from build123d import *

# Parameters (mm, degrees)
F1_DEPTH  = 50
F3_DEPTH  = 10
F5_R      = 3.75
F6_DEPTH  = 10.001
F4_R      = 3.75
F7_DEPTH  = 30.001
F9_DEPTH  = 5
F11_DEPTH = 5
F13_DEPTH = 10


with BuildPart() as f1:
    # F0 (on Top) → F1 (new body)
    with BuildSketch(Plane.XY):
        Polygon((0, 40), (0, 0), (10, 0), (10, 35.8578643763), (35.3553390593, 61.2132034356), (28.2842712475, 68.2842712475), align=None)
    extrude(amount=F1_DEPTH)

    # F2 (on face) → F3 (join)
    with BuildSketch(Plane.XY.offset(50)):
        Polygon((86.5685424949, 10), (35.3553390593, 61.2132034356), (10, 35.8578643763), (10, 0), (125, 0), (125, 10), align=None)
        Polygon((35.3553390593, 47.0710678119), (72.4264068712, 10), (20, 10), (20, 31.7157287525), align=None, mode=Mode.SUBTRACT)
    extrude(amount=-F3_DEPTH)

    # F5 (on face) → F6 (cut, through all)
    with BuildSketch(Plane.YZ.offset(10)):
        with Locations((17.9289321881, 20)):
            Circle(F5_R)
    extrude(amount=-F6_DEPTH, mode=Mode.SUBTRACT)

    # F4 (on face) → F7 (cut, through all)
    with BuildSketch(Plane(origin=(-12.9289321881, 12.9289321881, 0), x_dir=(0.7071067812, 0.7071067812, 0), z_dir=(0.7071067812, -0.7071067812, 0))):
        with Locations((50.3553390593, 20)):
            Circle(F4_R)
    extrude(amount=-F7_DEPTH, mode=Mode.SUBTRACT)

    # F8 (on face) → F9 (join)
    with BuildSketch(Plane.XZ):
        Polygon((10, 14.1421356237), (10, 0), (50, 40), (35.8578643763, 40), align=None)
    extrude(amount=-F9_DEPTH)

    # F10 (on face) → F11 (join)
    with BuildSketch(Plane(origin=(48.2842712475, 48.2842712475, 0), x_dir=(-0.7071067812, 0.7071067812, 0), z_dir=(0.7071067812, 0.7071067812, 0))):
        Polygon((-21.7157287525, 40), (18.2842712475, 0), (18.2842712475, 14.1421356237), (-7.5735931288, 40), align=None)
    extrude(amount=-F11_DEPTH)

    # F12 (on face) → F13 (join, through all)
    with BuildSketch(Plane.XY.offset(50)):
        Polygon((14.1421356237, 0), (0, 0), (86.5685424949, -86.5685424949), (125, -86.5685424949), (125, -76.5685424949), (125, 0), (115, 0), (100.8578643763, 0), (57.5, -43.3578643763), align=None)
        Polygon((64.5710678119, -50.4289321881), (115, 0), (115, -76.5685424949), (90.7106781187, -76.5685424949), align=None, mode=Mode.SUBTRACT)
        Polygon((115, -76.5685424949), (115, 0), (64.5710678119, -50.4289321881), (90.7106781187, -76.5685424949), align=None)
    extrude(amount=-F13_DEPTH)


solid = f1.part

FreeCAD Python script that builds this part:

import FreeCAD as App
import Part
import Sketcher
from FreeCAD import Vector
Q = App.Units.Quantity

doc = App.newDocument("Part")
body = doc.addObject("PartDesign::Body", "Body")

# Sketch on XY plane
sketch1 = doc.addObject("Sketcher::SketchObject", "Sketch")
body.addObject(sketch1)
sketch1.AttachmentSupport = (doc.XY_Plane, [""])
sketch1.MapMode = "FlatFace"
sketch1.addGeometry([
    Part.LineSegment(Vector(0, 40, 0), Vector(0, 0, 0)),  # 0
    Part.LineSegment(Vector(0, 0, 0), Vector(10, 0, 0)),  # 1
    Part.LineSegment(Vector(10, 0, 0), Vector(10, 36, 0)),  # 2
    Part.LineSegment(Vector(10, 36, 0), Vector(35, 61, 0)),  # 3
    Part.LineSegment(Vector(35, 61, 0), Vector(28, 68, 0)),  # 4
    Part.LineSegment(Vector(28, 68, 0), Vector(0, 40, 0)),  # 5
], False)
sketch1.addConstraint([
    Sketcher.Constraint("Coincident", 0, 2, 1, 1),
    Sketcher.Constraint("Coincident", 1, 2, 2, 1),
    Sketcher.Constraint("Coincident", 2, 2, 3, 1),
    Sketcher.Constraint("Coincident", 3, 2, 4, 1),
    Sketcher.Constraint("Coincident", 4, 2, 5, 1),
    Sketcher.Constraint("Coincident", 5, 2, 0, 1),
    Sketcher.Constraint("Vertical", 0),
    Sketcher.Constraint("Horizontal", 1),
    Sketcher.Constraint("Vertical", 2),
    Sketcher.Constraint("Coincident", 0, 2, -1, 1),
    Sketcher.Constraint("Perpendicular", 3, 4),
    Sketcher.Constraint("Perpendicular", 4, 5),
    Sketcher.Constraint("DistanceX", 1, 1, 1, 2, Q("10 mm")),
    Sketcher.Constraint("DistanceY", 0, 2, 0, 1, Q("40 mm")),
    Sketcher.Constraint("Angle", 3, Q("45 deg")),
    Sketcher.Constraint("Distance", 4, Q("10 mm")),
    Sketcher.Constraint("Distance", 5, Q("40 mm")),
])
pad1 = doc.addObject("PartDesign::Pad", "Pad")
body.addObject(pad1)
pad1.Profile = sketch1
pad1.Length = 50

# Sketch on XY plane
sketch2 = doc.addObject("Sketcher::SketchObject", "Sketch001")
body.addObject(sketch2)
sketch2.AttachmentSupport = (doc.XY_Plane, [""])
sketch2.MapMode = "FlatFace"
sketch2.AttachmentOffset = App.Placement(Vector(0, 0, 50), App.Rotation())
sketch2.addGeometry([
    Part.LineSegment(Vector(87, 10, 0), Vector(35, 61, 0)),  # 0
    Part.LineSegment(Vector(35, 61, 0), Vector(10, 36, 0)),  # 1
    Part.LineSegment(Vector(10, 36, 0), Vector(10, 0, 0)),  # 2
    Part.LineSegment(Vector(10, 0, 0), Vector(125, 0, 0)),  # 3
    Part.LineSegment(Vector(125, 0, 0), Vector(125, 10, 0)),  # 4
    Part.LineSegment(Vector(125, 10, 0), Vector(87, 10, 0)),  # 5
    Part.LineSegment(Vector(20, 32, 0), Vector(35, 47, 0)),  # 6
    Part.LineSegment(Vector(35, 47, 0), Vector(72, 10, 0)),  # 7
    Part.LineSegment(Vector(72, 10, 0), Vector(20, 10, 0)),  # 8
    Part.LineSegment(Vector(20, 10, 0), Vector(20, 32, 0)),  # 9
], False)
sketch2.addConstraint([
    Sketcher.Constraint("Coincident", 0, 2, 1, 1),
    Sketcher.Constraint("Coincident", 1, 2, 2, 1),
    Sketcher.Constraint("Coincident", 2, 2, 3, 1),
    Sketcher.Constraint("Coincident", 3, 2, 4, 1),
    Sketcher.Constraint("Coincident", 4, 2, 5, 1),
    Sketcher.Constraint("Coincident", 5, 2, 0, 1),
    Sketcher.Constraint("Coincident", 6, 2, 7, 1),
    Sketcher.Constraint("Coincident", 7, 2, 8, 1),
    Sketcher.Constraint("Coincident", 8, 2, 9, 1),
    Sketcher.Constraint("Coincident", 9, 2, 6, 1),
    Sketcher.Constraint("Vertical", 2),
    Sketcher.Constraint("Horizontal", 3),
    Sketcher.Constraint("Vertical", 4),
    Sketcher.Constraint("Horizontal", 5),
    Sketcher.Constraint("Horizontal", 8),
    Sketcher.Constraint("Vertical", 9),
    Sketcher.Constraint("PointOnObject", 2, 2, -1),
    Sketcher.Constraint("Perpendicular", 0, 1),
    Sketcher.Constraint("Parallel", 1, 6),
    Sketcher.Constraint("Perpendicular", 6, 7),
    Sketcher.Constraint("Horizontal", 5, 2, 7, 2),
    Sketcher.Constraint("Vertical", 0, 2, 6, 2),
    Sketcher.Constraint("DistanceX", 3, 1, 3, 2, Q("115 mm")),
    Sketcher.Constraint("DistanceY", 4, 1, 4, 2, Q("10 mm")),
    Sketcher.Constraint("Angle", 0, Q("135 deg")),
    Sketcher.Constraint("DistanceX", -1, 1, 1, 2, Q("10 mm")),
    Sketcher.Constraint("DistanceX", -1, 1, 8, 2, Q("20 mm")),
    Sketcher.Constraint("DistanceY", 9, 1, 9, 2, Q("21.715729 mm")),
    Sketcher.Constraint("Distance", 6, Q("21.715729 mm")),
    Sketcher.Constraint("DistanceX", 5, 2, 5, 1, Q("38.431458 mm")),
])
pad2 = doc.addObject("PartDesign::Pad", "Pad001")
body.addObject(pad2)
pad2.Profile = sketch2
pad2.Length = 10
pad2.Reversed = True

# Sketch on YZ plane
sketch3 = doc.addObject("Sketcher::SketchObject", "Sketch002")
body.addObject(sketch3)
sketch3.AttachmentSupport = (doc.YZ_Plane, [""])
sketch3.MapMode = "FlatFace"
sketch3.AttachmentOffset = App.Placement(Vector(0, 0, 10), App.Rotation())
sketch3.addGeometry(Part.Circle(Vector(17.9, 20, 0), Vector(0, 0, 1), 3.8), False)
sketch3.addConstraint([
    Sketcher.Constraint("Diameter", 0, Q("7.5 mm")),
    Sketcher.Constraint("DistanceY", -1, 1, 0, 3, Q("20 mm")),
    Sketcher.Constraint("DistanceX", -1, 1, 0, 3, Q("17.928932 mm")),
])
pocket1 = doc.addObject("PartDesign::Pocket", "Pocket")
body.addObject(pocket1)
pocket1.Profile = sketch3
pocket1.Type = "ThroughAll"

# Sketch on an angled plane
sketch4 = doc.addObject("Sketcher::SketchObject", "Sketch003")
body.addObject(sketch4)
sketch4.Placement = App.Placement(Vector(-12.928932, 12.928932, 0), App.Rotation(Vector(0.707106781, 0.707106781, 0), Vector(0, 0, 0.999999999), Vector(0.707106781, -0.707106781, 0), "ZXY"))
sketch4.addGeometry(Part.Circle(Vector(50.4, 20, 0), Vector(0, 0, 1), 3.8), False)
sketch4.addConstraint([
    Sketcher.Constraint("Diameter", 0, Q("7.5 mm")),
    Sketcher.Constraint("DistanceY", -1, 1, 0, 3, Q("20 mm")),
    Sketcher.Constraint("DistanceX", -1, 1, 0, 3, Q("50.355339 mm")),
])
pocket2 = doc.addObject("PartDesign::Pocket", "Pocket001")
body.addObject(pocket2)
pocket2.Profile = sketch4
pocket2.Type = "ThroughAll"

# Sketch on XZ plane
sketch5 = doc.addObject("Sketcher::SketchObject", "Sketch004")
body.addObject(sketch5)
sketch5.AttachmentSupport = (doc.XZ_Plane, [""])
sketch5.MapMode = "FlatFace"
sketch5.addGeometry([
    Part.LineSegment(Vector(10, 14, 0), Vector(10, 0, 0)),
    Part.LineSegment(Vector(10, 0, 0), Vector(50, 40, 0)),
    Part.LineSegment(Vector(50, 40, 0), Vector(36, 40, 0)),
    Part.LineSegment(Vector(36, 40, 0), Vector(10, 14, 0)),
], False)
sketch5.addConstraint([
    Sketcher.Constraint("Coincident", 0, 2, 1, 1),
    Sketcher.Constraint("Coincident", 1, 2, 2, 1),
    Sketcher.Constraint("Coincident", 2, 2, 3, 1),
    Sketcher.Constraint("Coincident", 3, 2, 0, 1),
    Sketcher.Constraint("Vertical", 0),
    Sketcher.Constraint("Horizontal", 2),
    Sketcher.Constraint("PointOnObject", 0, 2, -1),
    Sketcher.Constraint("Parallel", 1, 3),
    Sketcher.Constraint("Equal", 2, 0),
    Sketcher.Constraint("DistanceX", -1, 1, 0, 2, Q("10 mm")),
    Sketcher.Constraint("DistanceX", -1, 1, 1, 2, Q("50 mm")),
    Sketcher.Constraint("DistanceX", 2, 2, 2, 1, Q("14.142136 mm")),
])
pad3 = doc.addObject("PartDesign::Pad", "Pad002")
body.addObject(pad3)
pad3.Profile = sketch5
pad3.Length = 5
pad3.Reversed = True

# Sketch on an angled plane
sketch6 = doc.addObject("Sketcher::SketchObject", "Sketch005")
body.addObject(sketch6)
sketch6.Placement = App.Placement(Vector(48.284271, 48.284271, 0), App.Rotation(Vector(-0.707106781, 0.707106781, 0), Vector(0, 0, 0.999999999), Vector(0.707106781, 0.707106781, 0), "ZXY"))
sketch6.addGeometry([
    Part.LineSegment(Vector(-22, 40, 0), Vector(18, 0, 0)),
    Part.LineSegment(Vector(18, 0, 0), Vector(18, 14, 0)),
    Part.LineSegment(Vector(18, 14, 0), Vector(-8, 40, 0)),
    Part.LineSegment(Vector(-8, 40, 0), Vector(-22, 40, 0)),
], False)
sketch6.addConstraint([
    Sketcher.Constraint("Coincident", 0, 2, 1, 1),
    Sketcher.Constraint("Coincident", 1, 2, 2, 1),
    Sketcher.Constraint("Coincident", 2, 2, 3, 1),
    Sketcher.Constraint("Coincident", 3, 2, 0, 1),
    Sketcher.Constraint("Vertical", 1),
    Sketcher.Constraint("Horizontal", 3),
    Sketcher.Constraint("PointOnObject", 0, 2, -1),
    Sketcher.Constraint("Parallel", 0, 2),
    Sketcher.Constraint("Equal", 3, 1),
    Sketcher.Constraint("DistanceY", -1, 1, 2, 2, Q("40 mm")),
    Sketcher.Constraint("DistanceX", 3, 2, 3, 1, Q("14.142136 mm")),
    Sketcher.Constraint("DistanceX", -1, 1, 0, 2, Q("18.284271 mm")),
])
pad4 = doc.addObject("PartDesign::Pad", "Pad003")
body.addObject(pad4)
pad4.Profile = sketch6
pad4.Length = 5
pad4.Reversed = True

# Sketch on XY plane
sketch7 = doc.addObject("Sketcher::SketchObject", "Sketch006")
body.addObject(sketch7)
sketch7.AttachmentSupport = (doc.XY_Plane, [""])
sketch7.MapMode = "FlatFace"
sketch7.AttachmentOffset = App.Placement(Vector(0, 0, 50), App.Rotation())
sketch7.addGeometry([
    Part.LineSegment(Vector(101, 0, 0), Vector(58, -43, 0)),  # 0
    Part.LineSegment(Vector(58, -43, 0), Vector(14, 0, 0)),  # 1
    Part.LineSegment(Vector(14, 0, 0), Vector(0, 0, 0)),  # 2
    Part.LineSegment(Vector(0, 0, 0), Vector(87, -87, 0)),  # 3
    Part.LineSegment(Vector(87, -87, 0), Vector(125, -87, 0)),  # 4
    Part.LineSegment(Vector(125, -87, 0), Vector(125, 0, 0)),  # 5
    Part.LineSegment(Vector(125, 0, 0), Vector(101, 0, 0)),  # 6
], False)
sketch7.addConstraint([
    Sketcher.Constraint("Coincident", 0, 2, 1, 1),
    Sketcher.Constraint("Coincident", 1, 2, 2, 1),
    Sketcher.Constraint("Coincident", 2, 2, 3, 1),
    Sketcher.Constraint("Coincident", 3, 2, 4, 1),
    Sketcher.Constraint("Coincident", 4, 2, 5, 1),
    Sketcher.Constraint("Coincident", 5, 2, 6, 1),
    Sketcher.Constraint("Coincident", 6, 2, 0, 1),
    Sketcher.Constraint("Horizontal", 2),
    Sketcher.Constraint("Horizontal", 4),
    Sketcher.Constraint("Vertical", 5),
    Sketcher.Constraint("Horizontal", 6),
    Sketcher.Constraint("Coincident", 2, 2, -1, 1),
    Sketcher.Constraint("PointOnObject", 5, 2, -1),
    Sketcher.Constraint("Perpendicular", 0, 1),
    Sketcher.Constraint("Parallel", 1, 3),
    Sketcher.Constraint("Equal", 0, 1),
    Sketcher.Constraint("DistanceX", -1, 1, 4, 2, Q("125 mm")),
    Sketcher.Constraint("DistanceX", -1, 1, 0, 2, Q("57.5 mm")),
    Sketcher.Constraint("Distance", 0, Q("61.31728 mm")),
    Sketcher.Constraint("DistanceX", 4, 1, 4, 2, Q("38.431458 mm")),
])
pad5 = doc.addObject("PartDesign::Pad", "Pad004")
body.addObject(pad5)
pad5.Profile = sketch7
pad5.Length = 10
pad5.Reversed = True

doc.recompute()
